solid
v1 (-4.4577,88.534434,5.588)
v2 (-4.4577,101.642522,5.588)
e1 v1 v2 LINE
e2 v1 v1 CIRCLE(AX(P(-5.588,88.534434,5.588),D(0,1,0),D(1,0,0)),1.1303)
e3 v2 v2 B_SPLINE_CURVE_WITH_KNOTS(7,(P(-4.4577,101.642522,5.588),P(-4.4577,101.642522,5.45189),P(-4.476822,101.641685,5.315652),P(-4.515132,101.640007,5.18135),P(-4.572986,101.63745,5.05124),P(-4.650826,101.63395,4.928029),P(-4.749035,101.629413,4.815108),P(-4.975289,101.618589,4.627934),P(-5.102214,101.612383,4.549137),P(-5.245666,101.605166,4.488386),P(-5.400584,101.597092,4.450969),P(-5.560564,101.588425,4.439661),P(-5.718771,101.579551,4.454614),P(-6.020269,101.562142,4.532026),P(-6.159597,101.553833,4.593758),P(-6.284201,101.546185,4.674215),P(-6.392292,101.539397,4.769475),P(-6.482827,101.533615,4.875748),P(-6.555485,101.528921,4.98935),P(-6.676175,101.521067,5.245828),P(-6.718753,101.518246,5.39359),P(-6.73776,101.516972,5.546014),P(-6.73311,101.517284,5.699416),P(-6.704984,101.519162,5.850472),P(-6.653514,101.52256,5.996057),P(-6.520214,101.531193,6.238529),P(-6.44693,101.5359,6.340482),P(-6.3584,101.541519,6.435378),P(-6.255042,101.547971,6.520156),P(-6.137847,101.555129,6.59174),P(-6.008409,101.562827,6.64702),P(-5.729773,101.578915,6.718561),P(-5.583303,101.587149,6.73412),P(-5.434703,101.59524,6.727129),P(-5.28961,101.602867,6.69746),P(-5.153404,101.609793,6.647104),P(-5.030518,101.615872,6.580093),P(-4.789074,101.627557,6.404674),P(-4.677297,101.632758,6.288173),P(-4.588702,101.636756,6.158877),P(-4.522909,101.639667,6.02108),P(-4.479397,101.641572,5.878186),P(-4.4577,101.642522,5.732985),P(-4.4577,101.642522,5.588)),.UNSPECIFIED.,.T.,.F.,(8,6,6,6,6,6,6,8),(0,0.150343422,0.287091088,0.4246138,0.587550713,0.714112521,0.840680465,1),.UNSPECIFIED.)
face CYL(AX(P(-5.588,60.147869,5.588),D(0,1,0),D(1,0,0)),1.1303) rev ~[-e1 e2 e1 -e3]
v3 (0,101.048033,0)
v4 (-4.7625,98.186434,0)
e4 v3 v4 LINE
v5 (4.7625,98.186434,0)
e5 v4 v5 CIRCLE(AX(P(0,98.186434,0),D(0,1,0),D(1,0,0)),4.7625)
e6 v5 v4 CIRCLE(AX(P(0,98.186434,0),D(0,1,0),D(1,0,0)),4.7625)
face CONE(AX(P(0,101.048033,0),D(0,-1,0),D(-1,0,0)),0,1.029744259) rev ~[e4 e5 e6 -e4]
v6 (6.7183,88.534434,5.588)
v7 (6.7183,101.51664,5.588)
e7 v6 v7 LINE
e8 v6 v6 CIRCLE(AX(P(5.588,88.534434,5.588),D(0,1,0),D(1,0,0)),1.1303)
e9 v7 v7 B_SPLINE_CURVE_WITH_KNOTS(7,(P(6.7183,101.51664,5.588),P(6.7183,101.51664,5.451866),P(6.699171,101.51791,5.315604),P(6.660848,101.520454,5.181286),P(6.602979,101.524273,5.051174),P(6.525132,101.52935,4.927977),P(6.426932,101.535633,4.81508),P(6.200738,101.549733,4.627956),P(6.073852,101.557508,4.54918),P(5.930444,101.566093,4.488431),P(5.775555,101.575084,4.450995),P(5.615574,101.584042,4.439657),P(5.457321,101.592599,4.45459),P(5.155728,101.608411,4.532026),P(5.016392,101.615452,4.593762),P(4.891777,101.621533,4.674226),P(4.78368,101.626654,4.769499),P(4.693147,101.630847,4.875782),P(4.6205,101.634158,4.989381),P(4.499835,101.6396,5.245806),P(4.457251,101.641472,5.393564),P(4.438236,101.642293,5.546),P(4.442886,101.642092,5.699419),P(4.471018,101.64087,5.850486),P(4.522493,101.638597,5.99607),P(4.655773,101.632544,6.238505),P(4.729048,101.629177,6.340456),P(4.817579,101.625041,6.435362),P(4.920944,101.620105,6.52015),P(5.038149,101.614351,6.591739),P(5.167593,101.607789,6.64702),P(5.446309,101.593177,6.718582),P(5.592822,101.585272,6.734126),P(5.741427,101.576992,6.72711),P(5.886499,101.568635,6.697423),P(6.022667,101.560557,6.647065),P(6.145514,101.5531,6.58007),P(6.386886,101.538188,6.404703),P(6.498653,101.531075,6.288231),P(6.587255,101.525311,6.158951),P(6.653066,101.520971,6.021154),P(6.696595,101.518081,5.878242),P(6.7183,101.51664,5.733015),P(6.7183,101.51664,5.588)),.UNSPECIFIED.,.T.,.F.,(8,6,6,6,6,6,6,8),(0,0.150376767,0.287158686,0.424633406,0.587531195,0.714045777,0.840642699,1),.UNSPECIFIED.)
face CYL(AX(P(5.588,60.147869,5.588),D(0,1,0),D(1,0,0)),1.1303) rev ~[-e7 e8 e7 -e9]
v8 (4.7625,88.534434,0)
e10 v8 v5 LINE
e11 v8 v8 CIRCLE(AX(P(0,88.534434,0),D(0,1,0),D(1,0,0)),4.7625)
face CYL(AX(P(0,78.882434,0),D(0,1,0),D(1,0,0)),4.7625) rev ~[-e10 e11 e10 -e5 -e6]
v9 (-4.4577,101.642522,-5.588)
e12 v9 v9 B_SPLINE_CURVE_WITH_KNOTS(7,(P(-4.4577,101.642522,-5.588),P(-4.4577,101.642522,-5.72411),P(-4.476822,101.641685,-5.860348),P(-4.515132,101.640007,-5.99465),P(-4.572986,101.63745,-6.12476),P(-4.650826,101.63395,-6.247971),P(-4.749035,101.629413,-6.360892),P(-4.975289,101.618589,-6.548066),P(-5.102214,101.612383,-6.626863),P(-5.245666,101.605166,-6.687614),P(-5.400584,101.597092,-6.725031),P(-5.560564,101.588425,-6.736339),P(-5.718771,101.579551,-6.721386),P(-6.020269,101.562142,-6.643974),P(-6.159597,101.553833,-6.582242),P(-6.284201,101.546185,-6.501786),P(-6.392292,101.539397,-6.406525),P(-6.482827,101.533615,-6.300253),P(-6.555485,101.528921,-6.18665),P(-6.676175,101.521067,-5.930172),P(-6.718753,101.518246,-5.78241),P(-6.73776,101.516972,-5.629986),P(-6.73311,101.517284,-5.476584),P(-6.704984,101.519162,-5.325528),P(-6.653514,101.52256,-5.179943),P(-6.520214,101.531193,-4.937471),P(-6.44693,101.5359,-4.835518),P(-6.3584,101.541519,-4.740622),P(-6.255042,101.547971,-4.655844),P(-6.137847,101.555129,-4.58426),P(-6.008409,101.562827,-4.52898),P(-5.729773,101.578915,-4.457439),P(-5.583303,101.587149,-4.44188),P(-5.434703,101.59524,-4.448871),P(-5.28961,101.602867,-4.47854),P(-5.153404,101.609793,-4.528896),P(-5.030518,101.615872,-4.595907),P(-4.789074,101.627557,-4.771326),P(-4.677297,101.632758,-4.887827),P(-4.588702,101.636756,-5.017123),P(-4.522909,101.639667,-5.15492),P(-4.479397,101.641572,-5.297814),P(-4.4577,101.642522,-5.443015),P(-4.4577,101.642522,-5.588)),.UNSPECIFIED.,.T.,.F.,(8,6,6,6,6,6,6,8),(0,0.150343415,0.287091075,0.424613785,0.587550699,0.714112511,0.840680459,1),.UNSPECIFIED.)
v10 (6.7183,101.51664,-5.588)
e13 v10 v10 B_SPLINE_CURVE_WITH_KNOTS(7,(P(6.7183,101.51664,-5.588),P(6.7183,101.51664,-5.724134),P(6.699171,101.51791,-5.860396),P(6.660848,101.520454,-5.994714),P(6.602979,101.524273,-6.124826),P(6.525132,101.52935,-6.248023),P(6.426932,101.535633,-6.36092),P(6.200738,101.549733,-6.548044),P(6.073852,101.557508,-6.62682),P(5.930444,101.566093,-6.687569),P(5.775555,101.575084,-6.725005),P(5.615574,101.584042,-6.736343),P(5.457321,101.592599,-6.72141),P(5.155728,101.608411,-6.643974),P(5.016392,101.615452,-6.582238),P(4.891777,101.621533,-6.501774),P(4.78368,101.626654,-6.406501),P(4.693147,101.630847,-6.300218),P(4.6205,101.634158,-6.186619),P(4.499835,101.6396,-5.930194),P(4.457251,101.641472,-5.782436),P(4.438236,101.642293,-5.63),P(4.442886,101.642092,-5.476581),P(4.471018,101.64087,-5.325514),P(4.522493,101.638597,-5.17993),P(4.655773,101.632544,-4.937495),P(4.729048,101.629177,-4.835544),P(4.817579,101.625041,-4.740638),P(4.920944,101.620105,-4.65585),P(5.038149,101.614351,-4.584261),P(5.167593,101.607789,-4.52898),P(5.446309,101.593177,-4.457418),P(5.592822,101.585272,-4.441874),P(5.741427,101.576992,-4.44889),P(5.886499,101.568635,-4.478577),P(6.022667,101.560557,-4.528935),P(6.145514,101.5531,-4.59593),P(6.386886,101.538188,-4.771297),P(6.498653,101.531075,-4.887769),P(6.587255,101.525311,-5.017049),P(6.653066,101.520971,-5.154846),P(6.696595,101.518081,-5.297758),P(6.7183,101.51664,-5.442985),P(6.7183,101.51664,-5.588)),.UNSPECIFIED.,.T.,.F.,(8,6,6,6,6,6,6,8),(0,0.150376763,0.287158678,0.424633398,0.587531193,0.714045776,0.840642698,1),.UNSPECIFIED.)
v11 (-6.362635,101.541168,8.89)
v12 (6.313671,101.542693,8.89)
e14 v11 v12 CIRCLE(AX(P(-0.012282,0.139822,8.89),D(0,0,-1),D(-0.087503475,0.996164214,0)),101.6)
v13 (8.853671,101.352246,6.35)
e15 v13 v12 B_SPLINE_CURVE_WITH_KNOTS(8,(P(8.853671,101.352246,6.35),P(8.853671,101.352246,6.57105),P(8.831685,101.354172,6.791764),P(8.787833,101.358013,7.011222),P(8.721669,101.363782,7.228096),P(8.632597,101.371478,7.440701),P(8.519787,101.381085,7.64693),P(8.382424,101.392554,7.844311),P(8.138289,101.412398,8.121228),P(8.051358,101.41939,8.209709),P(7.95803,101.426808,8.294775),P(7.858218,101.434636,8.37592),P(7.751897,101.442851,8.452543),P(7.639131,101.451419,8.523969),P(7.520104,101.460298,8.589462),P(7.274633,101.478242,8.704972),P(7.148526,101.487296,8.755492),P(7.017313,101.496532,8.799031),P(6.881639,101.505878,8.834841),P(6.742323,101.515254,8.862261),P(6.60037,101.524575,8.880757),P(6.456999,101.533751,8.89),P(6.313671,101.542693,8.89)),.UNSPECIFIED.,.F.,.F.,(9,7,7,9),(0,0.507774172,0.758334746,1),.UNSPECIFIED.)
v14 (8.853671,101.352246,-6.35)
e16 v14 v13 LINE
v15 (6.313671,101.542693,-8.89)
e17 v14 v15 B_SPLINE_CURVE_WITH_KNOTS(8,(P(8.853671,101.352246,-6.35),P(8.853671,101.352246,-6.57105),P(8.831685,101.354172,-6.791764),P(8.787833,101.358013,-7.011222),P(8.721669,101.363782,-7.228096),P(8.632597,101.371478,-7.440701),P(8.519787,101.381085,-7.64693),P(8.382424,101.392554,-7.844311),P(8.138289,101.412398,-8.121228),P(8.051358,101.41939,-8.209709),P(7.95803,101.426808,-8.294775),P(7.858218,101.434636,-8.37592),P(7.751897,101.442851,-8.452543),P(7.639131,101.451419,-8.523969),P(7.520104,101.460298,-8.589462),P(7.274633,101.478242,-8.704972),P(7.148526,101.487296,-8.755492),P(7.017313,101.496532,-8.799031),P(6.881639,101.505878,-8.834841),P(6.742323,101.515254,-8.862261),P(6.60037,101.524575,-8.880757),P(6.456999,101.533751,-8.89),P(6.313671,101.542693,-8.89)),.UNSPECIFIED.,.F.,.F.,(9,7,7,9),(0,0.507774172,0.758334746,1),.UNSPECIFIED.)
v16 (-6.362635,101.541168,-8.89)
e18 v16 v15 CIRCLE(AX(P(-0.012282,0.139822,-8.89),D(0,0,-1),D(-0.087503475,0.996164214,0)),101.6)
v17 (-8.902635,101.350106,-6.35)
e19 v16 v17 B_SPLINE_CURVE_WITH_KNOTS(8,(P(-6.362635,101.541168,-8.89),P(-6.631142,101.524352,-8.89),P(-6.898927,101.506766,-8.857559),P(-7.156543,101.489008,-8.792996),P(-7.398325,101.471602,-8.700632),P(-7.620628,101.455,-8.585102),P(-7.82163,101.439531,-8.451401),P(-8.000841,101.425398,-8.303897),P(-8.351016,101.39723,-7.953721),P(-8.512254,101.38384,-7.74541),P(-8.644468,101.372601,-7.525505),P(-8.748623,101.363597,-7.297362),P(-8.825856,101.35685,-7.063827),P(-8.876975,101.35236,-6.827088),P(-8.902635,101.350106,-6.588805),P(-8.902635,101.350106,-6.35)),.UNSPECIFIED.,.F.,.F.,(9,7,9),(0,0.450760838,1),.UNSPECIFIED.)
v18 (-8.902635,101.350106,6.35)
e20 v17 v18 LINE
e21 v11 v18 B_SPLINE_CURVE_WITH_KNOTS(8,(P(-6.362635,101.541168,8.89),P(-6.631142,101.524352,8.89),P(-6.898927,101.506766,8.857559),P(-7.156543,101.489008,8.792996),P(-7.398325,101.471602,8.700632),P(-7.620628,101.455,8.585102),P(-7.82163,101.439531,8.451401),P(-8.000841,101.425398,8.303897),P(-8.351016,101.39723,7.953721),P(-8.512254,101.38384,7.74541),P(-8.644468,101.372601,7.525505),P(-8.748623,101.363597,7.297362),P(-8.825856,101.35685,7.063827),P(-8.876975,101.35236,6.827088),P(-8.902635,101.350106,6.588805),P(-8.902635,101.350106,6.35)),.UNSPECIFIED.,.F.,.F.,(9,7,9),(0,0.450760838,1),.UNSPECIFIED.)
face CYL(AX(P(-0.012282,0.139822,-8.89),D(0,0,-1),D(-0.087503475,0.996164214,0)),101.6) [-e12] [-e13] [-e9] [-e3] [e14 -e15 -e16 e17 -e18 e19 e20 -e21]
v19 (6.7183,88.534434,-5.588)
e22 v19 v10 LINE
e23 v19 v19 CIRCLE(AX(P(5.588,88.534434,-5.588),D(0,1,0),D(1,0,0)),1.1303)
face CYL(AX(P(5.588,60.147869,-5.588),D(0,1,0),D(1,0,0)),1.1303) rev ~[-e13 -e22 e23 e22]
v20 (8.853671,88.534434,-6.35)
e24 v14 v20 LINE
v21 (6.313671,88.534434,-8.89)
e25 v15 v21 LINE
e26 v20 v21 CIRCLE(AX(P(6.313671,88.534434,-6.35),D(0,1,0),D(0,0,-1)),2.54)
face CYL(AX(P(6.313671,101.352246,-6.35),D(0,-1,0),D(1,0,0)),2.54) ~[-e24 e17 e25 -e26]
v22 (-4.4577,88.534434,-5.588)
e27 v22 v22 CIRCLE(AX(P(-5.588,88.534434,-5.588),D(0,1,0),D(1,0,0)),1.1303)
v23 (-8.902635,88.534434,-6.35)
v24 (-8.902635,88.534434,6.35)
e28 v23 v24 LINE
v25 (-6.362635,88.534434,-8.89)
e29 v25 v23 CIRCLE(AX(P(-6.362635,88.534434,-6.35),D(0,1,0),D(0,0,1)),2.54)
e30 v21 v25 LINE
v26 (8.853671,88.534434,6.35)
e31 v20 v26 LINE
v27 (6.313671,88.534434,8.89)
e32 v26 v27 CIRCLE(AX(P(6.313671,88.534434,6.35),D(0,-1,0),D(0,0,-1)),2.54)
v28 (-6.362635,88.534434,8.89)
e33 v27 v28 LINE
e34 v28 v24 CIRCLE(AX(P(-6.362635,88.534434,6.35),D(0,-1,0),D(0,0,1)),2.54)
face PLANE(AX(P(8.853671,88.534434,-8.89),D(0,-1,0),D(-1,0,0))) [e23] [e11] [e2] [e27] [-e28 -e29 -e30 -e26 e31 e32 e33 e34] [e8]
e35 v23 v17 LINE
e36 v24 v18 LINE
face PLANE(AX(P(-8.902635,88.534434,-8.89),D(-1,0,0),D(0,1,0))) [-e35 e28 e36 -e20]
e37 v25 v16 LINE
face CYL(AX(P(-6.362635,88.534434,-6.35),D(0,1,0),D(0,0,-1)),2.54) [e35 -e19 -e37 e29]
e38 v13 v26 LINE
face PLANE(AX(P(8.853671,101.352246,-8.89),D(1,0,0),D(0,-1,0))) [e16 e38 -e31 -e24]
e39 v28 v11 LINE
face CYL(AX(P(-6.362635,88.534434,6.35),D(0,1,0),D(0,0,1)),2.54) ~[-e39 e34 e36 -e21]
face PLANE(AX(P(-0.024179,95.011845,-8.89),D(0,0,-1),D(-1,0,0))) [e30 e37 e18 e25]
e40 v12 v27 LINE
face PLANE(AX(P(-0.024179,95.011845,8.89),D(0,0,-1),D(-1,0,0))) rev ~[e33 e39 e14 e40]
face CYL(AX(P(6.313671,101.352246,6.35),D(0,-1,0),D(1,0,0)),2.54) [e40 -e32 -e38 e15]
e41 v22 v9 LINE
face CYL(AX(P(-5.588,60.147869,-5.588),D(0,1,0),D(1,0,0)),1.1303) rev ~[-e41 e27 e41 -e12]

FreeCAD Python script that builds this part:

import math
import FreeCAD as App
import Part
import Sketcher
from FreeCAD import Vector
Q = App.Units.Quantity


def edges_at(feature, points):
    """Names of the edges that pass closest to the given points."""
    edges = feature.Shape.Edges
    near = lambda p: min(range(len(edges)), key=lambda i: edges[i].distToShape(Part.Vertex(*p))[0])
    return sorted({f"Edge{near(p) + 1}" for p in points})

doc = App.newDocument("Part")
body = doc.addObject("PartDesign::Body", "Body")

# Sketch on XY plane
sketch1 = doc.addObject("Sketcher::SketchObject", "Sketch")
body.addObject(sketch1)
sketch1.AttachmentSupport = (doc.XY_Plane, [""])
sketch1.MapMode = "FlatFace"
sketch1.addGeometry(Part.LineSegment(Vector(8.853671, 88.534434, 0), Vector(8.853671, 101.352246, 0)), False)
sketch1.addGeometry(Part.ArcOfCircle(Part.Circle(Vector(-0.012282, 0.139822, 0), Vector(0, 0, 1), 101.6), math.radians(84.993813), math.radians(95.02)), False)
sketch1.addGeometry(Part.LineSegment(Vector(-8.902635, 101.350106, 0), Vector(-8.902635, 88.534434, 0)), False)
sketch1.addGeometry(Part.LineSegment(Vector(-8.902635, 88.534434, 0), Vector(8.853671, 88.534434, 0)), False)
sketch1.addConstraint(Sketcher.Constraint("Coincident", 0, 2, 1, 1))
sketch1.addConstraint(Sketcher.Constraint("Coincident", 1, 2, 2, 1))
sketch1.addConstraint(Sketcher.Constraint("Coincident", 2, 2, 3, 1))
sketch1.addConstraint(Sketcher.Constraint("Coincident", 3, 2, 0, 1))
sketch1.addConstraint(Sketcher.Constraint("Vertical", 0))
sketch1.addConstraint(Sketcher.Constraint("Vertical", 2))
sketch1.addConstraint(Sketcher.Constraint("Horizontal", 3))
sketch1.addConstraint(Sketcher.Constraint("Radius", 1, Q("4 in")))
sketch1.addConstraint(Sketcher.Constraint("DistanceY", 2, 2, 2, 1, 12.815672))
sketch1.addConstraint(Sketcher.Constraint("DistanceX", 3, 1, 3, 2, 17.756306))
sketch1.addConstraint(Sketcher.Constraint("DistanceY", 0, 1, 0, 2, 12.817812))
sketch1.addConstraint(Sketcher.Constraint("DistanceX", 1, 3, -1, 1, 0.012282))
sketch1.addConstraint(Sketcher.Constraint("DistanceY", -1, 1, 1, 3, 0.139822))
pad1 = doc.addObject("PartDesign::Pad", "Pad")
body.addObject(pad1)
pad1.Profile = sketch1
pad1.Type = "TwoLengths"
pad1.Length = Q("0.35 in")
pad1.Length2 = Q("0.35 in")

# Sketch on XZ plane
sketch2 = doc.addObject("Sketcher::SketchObject", "Sketch001")
body.addObject(sketch2)
sketch2.AttachmentSupport = (doc.XZ_Plane, [""])
sketch2.MapMode = "FlatFace"
sketch2.AttachmentOffset = App.Placement(Vector(0, 0, -88.534434), App.Rotation())
sketch2.addGeometry(Part.Circle(Vector(0, 0, 0), Vector(0, 0, 1), 4.7625), False)
sketch2.addConstraint(Sketcher.Constraint("Coincident", 0, 3, -1, 1))
sketch2.addConstraint(Sketcher.Constraint("Diameter", 0, Q("0.375 in")))
doc.recompute()
hole = doc.addObject("PartDesign::Hole", "Hole")
body.addObject(hole)
hole.Profile = sketch2
hole.ThreadType = "None"
hole.Diameter = Q("0.375 in")
hole.DepthType = "Dimension"
hole.Depth = Q("0.38 in")
hole.DrillPoint = "Angled"
hole.DrillPointAngle = 118

# Sketch on XZ plane
sketch3 = doc.addObject("Sketcher::SketchObject", "Sketch002")
body.addObject(sketch3)
sketch3.AttachmentSupport = (doc.XZ_Plane, [""])
sketch3.MapMode = "FlatFace"
sketch3.AttachmentOffset = App.Placement(Vector(0, 0, -88.534434), App.Rotation())
sketch3.addGeometry(Part.Circle(Vector(5.588, -5.588, 0), Vector(0, 0, 1), 1.1303), False)
sketch3.addGeometry(Part.Circle(Vector(-5.588, -5.588, 0), Vector(0, 0, 1), 1.1303), False)
sketch3.addGeometry(Part.Circle(Vector(-5.588, 5.588, 0), Vector(0, 0, 1), 1.1303), False)
sketch3.addGeometry(Part.Circle(Vector(5.588, 5.588, 0), Vector(0, 0, 1), 1.1303), False)
sketch3.addConstraint(Sketcher.Constraint("Equal", 0, 1))
sketch3.addConstraint(Sketcher.Constraint("Equal", 1, 2))
sketch3.addConstraint(Sketcher.Constraint("Equal", 2, 3))
sketch3.addConstraint(Sketcher.Constraint("Symmetric", 0, 3, 2, 3, -1, 1))
sketch3.addConstraint(Sketcher.Constraint("Symmetric", 1, 3, 3, 3, -1, 1))
sketch3.addConstraint(Sketcher.Constraint("Symmetric", 0, 3, 1, 3, -2))
sketch3.addConstraint(Sketcher.Constraint("Diameter", 0, Q("0.089 in")))
sketch3.addConstraint(Sketcher.Constraint("DistanceX", -1, 1, 0, 3, Q("0.22 in")))
sketch3.addConstraint(Sketcher.Constraint("DistanceY", 0, 3, -1, 1, Q("0.22 in")))
doc.recompute()
hole2 = doc.addObject("PartDesign::Hole", "Hole001")
body.addObject(hole2)
hole2.Profile = sketch3
hole2.ThreadType = "None"
hole2.Diameter = Q("0.089 in")
hole2.DepthType = "ThroughAll"
doc.recompute()

fillet = doc.addObject("PartDesign::Fillet", "Fillet")
body.addObject(fillet)
fillet.Base = (hole2, edges_at(hole2, [
    (-8.903, 94.942, 8.89),
    (8.854, 94.943, -8.89),
    (8.854, 94.943, 8.89),
    (-8.903, 94.942, -8.89),
]))
fillet.Radius = Q("0.1 in")

doc.recompute()
